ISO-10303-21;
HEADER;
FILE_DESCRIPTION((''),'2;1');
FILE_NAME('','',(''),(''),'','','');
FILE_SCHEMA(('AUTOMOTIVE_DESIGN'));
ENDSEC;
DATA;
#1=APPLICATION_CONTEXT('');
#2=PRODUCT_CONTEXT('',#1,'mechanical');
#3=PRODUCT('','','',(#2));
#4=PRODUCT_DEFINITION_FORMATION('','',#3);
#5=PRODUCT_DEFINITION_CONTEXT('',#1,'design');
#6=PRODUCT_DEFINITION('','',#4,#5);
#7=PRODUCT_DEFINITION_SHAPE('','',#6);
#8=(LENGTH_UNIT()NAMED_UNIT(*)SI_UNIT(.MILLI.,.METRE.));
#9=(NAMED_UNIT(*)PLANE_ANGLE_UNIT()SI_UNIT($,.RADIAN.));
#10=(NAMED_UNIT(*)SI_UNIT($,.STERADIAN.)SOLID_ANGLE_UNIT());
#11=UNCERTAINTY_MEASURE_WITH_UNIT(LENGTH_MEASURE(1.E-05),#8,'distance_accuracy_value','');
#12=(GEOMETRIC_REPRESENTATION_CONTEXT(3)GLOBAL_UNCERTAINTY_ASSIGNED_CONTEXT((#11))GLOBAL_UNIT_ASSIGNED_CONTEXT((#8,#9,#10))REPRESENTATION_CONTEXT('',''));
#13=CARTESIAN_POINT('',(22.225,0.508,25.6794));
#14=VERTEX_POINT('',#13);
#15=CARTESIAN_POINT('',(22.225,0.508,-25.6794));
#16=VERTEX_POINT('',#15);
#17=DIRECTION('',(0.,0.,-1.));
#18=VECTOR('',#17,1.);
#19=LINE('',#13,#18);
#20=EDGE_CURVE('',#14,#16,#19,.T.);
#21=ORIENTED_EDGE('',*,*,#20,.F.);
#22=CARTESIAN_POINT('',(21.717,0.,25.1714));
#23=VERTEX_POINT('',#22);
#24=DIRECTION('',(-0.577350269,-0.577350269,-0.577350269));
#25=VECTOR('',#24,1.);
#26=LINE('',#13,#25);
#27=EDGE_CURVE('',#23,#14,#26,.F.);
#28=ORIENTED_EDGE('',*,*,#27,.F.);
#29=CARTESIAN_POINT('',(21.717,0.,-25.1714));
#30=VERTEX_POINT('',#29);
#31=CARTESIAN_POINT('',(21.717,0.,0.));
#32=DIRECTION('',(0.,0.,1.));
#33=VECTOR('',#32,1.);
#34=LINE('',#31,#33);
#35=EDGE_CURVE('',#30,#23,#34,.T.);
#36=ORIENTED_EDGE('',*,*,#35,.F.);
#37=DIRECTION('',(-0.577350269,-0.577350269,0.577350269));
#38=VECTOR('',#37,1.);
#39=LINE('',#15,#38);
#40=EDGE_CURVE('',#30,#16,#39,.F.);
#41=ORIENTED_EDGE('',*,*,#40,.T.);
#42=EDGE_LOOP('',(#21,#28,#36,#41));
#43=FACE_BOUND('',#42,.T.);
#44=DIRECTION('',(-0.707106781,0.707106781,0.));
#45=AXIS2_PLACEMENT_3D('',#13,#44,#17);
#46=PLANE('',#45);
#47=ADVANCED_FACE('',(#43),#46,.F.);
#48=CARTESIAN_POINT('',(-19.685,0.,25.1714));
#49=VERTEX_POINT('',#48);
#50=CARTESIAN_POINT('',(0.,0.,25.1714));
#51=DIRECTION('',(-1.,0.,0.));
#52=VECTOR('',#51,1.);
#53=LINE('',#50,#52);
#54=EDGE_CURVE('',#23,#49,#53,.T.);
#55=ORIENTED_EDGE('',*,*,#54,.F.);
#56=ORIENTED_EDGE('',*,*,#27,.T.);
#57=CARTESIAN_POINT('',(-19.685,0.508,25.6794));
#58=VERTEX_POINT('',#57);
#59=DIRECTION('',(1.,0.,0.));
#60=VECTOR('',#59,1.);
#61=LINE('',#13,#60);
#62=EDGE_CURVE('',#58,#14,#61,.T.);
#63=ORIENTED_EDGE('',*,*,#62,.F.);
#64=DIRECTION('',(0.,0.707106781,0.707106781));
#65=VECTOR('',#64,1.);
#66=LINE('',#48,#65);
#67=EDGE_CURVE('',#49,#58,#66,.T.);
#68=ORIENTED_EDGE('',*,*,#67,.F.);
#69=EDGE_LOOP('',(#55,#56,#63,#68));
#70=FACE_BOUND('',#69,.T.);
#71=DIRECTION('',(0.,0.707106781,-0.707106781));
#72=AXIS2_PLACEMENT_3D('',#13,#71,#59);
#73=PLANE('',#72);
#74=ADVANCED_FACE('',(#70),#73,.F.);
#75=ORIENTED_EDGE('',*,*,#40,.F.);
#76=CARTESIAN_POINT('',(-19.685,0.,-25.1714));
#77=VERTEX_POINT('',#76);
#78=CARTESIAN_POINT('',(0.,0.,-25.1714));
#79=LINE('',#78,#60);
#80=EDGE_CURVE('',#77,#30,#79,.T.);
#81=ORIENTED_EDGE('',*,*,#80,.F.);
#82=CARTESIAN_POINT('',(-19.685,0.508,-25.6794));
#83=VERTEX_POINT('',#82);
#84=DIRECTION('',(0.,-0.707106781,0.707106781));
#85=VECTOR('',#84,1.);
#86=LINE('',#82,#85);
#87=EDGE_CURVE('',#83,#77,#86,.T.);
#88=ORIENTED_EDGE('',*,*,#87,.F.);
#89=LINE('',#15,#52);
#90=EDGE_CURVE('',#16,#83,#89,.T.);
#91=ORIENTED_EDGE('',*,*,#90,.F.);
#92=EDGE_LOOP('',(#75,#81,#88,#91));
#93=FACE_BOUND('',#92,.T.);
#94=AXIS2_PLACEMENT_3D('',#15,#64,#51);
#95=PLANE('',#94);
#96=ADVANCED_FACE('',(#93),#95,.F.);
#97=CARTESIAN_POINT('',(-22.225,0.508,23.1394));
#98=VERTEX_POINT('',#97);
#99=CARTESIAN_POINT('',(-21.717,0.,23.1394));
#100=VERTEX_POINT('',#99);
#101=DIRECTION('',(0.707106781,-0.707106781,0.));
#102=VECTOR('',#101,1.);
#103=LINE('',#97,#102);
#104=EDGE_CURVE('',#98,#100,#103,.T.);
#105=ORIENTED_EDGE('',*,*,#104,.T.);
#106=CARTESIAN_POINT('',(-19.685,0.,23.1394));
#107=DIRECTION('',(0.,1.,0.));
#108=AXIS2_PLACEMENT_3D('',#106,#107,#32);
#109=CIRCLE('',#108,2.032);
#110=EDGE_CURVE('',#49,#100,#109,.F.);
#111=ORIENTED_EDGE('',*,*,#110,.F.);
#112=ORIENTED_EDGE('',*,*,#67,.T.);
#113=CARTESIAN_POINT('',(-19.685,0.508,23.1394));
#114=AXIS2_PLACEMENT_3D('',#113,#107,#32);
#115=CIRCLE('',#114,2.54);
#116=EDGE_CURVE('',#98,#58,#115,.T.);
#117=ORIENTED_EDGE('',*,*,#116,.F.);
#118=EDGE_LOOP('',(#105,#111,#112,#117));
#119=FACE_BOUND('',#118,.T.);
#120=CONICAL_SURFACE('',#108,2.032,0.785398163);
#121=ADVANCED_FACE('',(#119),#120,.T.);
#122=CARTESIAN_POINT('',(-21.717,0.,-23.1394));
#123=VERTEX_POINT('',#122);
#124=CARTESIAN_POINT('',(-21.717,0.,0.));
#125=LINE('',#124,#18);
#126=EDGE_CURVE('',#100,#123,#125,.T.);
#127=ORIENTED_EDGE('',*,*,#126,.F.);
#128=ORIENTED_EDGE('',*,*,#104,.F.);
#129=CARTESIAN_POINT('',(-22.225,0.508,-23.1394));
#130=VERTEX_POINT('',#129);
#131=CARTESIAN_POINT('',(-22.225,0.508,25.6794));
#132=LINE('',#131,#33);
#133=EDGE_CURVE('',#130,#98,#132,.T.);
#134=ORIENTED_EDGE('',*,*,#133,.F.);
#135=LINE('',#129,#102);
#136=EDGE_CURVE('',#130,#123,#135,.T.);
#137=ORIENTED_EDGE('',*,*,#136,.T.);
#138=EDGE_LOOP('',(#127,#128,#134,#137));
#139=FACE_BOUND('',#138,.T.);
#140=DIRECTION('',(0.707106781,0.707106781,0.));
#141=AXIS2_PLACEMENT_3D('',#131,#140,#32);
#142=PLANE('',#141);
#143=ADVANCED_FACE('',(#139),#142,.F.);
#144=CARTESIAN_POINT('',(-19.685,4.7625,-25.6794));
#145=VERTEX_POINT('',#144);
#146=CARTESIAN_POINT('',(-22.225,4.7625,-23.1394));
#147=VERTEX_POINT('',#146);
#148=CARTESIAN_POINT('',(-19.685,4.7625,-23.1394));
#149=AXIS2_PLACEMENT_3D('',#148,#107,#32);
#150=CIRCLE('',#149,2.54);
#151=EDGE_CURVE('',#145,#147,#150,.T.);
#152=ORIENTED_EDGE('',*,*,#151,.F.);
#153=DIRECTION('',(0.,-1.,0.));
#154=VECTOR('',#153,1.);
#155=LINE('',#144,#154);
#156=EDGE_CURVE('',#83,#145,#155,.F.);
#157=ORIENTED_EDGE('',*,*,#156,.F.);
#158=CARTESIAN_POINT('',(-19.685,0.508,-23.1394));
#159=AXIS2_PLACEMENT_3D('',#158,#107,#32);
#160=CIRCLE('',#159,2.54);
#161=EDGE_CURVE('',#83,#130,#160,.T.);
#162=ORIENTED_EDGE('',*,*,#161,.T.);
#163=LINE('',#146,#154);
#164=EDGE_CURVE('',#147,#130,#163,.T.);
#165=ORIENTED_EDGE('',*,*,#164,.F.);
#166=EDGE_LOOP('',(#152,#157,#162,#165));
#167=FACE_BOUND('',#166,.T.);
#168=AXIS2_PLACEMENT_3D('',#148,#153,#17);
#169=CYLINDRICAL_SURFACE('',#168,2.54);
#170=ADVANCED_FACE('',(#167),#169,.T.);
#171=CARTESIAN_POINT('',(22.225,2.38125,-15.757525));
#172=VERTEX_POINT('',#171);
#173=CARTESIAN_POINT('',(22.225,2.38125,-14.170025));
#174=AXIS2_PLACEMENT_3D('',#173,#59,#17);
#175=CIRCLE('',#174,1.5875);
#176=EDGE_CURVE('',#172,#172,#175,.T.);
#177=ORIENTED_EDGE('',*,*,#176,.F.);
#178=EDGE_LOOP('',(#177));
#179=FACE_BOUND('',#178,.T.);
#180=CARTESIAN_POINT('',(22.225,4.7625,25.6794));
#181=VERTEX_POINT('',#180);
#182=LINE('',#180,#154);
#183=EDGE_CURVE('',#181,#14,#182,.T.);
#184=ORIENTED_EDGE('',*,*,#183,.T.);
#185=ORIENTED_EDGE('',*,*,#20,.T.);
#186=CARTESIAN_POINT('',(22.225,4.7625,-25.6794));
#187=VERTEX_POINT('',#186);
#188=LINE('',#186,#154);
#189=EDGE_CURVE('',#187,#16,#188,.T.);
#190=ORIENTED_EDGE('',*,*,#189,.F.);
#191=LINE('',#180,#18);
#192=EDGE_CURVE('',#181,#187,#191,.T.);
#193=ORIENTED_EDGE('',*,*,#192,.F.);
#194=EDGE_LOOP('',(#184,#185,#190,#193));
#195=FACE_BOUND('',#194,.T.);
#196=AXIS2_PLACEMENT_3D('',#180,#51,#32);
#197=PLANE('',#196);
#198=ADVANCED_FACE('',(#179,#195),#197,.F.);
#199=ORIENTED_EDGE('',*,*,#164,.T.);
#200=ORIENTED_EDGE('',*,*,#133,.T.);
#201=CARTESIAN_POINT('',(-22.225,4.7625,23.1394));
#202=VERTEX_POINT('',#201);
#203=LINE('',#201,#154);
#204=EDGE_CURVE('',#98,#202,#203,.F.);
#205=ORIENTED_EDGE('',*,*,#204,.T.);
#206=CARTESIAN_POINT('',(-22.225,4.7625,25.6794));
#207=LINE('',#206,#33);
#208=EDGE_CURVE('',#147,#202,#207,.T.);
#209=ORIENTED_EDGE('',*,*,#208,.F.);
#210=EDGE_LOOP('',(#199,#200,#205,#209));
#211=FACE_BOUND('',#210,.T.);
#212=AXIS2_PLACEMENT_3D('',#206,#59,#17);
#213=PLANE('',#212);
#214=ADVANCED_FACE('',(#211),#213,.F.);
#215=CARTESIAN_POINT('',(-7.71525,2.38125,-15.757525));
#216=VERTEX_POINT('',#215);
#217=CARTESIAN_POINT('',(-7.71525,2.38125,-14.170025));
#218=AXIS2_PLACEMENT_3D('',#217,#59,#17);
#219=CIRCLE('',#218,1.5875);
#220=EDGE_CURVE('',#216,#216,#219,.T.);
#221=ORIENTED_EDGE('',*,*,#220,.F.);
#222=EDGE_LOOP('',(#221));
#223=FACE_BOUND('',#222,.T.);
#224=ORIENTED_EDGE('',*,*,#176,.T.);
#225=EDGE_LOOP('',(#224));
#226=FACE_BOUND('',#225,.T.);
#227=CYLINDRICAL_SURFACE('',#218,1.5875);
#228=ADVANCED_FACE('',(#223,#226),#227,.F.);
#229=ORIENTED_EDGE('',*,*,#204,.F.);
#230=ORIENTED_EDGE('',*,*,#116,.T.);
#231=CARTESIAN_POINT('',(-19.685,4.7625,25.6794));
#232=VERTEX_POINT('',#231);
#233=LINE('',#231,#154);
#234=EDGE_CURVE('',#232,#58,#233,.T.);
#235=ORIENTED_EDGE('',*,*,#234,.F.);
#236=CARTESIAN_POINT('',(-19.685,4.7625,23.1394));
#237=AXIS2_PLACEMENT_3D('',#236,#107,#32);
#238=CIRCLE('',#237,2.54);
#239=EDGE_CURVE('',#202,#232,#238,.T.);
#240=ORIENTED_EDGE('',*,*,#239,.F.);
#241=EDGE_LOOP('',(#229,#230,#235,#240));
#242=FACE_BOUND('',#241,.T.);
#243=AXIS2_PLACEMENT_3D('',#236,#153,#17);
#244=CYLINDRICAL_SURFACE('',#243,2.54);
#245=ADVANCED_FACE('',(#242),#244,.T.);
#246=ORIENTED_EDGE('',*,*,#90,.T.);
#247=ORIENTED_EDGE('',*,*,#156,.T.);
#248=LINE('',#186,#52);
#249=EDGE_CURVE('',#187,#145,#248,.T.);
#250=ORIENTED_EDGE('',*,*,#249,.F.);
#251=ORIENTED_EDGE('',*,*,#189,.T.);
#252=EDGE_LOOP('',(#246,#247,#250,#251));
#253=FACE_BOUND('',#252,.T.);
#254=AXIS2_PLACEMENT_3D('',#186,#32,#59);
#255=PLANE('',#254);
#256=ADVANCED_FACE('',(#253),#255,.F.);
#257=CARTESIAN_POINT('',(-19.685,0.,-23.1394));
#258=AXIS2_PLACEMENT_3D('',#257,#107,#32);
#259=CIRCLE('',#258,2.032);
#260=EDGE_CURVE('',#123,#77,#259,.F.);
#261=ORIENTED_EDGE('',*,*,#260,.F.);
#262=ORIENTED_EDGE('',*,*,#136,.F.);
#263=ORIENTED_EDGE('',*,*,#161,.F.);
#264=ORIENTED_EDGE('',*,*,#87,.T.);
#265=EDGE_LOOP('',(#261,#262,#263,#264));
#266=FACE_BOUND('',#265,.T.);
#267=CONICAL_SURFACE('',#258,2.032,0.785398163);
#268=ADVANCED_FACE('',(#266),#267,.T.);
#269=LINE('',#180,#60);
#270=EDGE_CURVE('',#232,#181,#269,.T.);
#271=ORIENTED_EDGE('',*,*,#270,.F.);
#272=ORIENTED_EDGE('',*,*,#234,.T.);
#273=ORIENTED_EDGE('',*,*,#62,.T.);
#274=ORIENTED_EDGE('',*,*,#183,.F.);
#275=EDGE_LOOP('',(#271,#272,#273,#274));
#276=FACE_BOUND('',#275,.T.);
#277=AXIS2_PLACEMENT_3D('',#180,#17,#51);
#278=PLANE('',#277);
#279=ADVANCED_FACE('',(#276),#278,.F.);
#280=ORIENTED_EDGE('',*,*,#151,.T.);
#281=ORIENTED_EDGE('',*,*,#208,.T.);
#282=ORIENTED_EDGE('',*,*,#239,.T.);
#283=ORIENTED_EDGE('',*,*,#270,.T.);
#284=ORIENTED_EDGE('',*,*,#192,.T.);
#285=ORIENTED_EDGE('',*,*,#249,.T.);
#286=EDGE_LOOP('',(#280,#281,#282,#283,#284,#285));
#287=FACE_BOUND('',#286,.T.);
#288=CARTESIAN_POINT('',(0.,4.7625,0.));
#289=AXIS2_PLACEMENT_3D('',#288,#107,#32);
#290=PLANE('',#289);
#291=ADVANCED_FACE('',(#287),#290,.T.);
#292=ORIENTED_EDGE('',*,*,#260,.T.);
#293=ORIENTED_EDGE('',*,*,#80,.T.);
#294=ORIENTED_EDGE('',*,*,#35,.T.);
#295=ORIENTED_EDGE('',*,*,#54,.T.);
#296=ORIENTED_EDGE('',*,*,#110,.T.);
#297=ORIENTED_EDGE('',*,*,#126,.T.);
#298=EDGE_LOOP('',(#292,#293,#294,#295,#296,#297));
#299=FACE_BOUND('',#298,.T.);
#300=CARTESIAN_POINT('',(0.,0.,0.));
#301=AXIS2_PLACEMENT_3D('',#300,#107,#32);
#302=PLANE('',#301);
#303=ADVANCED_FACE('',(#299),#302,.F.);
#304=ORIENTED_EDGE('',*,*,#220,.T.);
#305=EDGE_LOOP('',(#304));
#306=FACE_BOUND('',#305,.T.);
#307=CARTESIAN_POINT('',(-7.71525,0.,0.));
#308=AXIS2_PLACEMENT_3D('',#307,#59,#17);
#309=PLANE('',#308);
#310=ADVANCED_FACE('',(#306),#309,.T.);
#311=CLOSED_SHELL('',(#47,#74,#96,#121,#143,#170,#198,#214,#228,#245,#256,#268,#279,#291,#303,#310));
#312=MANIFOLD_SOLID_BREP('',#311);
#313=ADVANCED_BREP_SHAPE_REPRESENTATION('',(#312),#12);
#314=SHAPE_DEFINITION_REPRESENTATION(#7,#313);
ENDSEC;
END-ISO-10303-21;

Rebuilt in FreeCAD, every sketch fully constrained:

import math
import FreeCAD as App
import Part
import Sketcher

V = App.Vector
Q = App.Units.Quantity


def edges_at(feature, points):
    """Names of the edges that pass closest to the given points."""
    edges = feature.Shape.Edges
    near = lambda p: min(range(len(edges)), key=lambda i: edges[i].distToShape(Part.Vertex(*p))[0])
    return sorted({f"Edge{near(p) + 1}" for p in points})

doc = App.newDocument("Part")
body = doc.addObject("PartDesign::Body", "Body")

# Sketch on XZ plane
sketch1 = doc.addObject("Sketcher::SketchObject", "Sketch")
body.addObject(sketch1)
sketch1.AttachmentSupport = (doc.XZ_Plane, [""])
sketch1.MapMode = "FlatFace"
sketch1.addGeometry([
    Part.LineSegment(V(-22.225, -25.6794, 0), V(-22.225, 25.6794, 0)),
    Part.LineSegment(V(-22.225, 25.6794, 0), V(22.225, 25.6794, 0)),
    Part.LineSegment(V(22.225, 25.6794, 0), V(22.225, -25.6794, 0)),
    Part.LineSegment(V(22.225, -25.6794, 0), V(-22.225, -25.6794, 0)),
], False)
sketch1.addConstraint([
    Sketcher.Constraint("Coincident", 0, 2, 1, 1),
    Sketcher.Constraint("Coincident", 1, 2, 2, 1),
    Sketcher.Constraint("Coincident", 2, 2, 3, 1),
    Sketcher.Constraint("Coincident", 3, 2, 0, 1),
    Sketcher.Constraint("Vertical", 0),
    Sketcher.Constraint("Horizontal", 1),
    Sketcher.Constraint("Vertical", 2),
    Sketcher.Constraint("Horizontal", 3),
    Sketcher.Constraint("Symmetric", 0, 2, 2, 2, -1, 1),
    Sketcher.Constraint("DistanceX", 1, 1, 1, 2, Q("1.75 in")),
    Sketcher.Constraint("DistanceY", 0, 1, 0, 2, Q("2.022 in")),
])
pad1 = doc.addObject("PartDesign::Pad", "Pad")
body.addObject(pad1)
pad1.Profile = sketch1
pad1.Length = Q("0.1875 in")
pad1.Reversed = True

# Sketch on YZ plane
sketch2 = doc.addObject("Sketcher::SketchObject", "Sketch001")
body.addObject(sketch2)
sketch2.AttachmentSupport = (doc.YZ_Plane, [""])
sketch2.MapMode = "FlatFace"
sketch2.AttachmentOffset = App.Placement(V(0, 0, 0.875 * 25.4), App.Rotation())
sketch2.addGeometry([
    Part.ArcOfCircle(Part.Circle(V(2.38125, -14.170025, 0), V(0, 0, 1), 1.5875), math.radians(-90), math.radians(0)),
    Part.ArcOfCircle(Part.Circle(V(2.38125, -14.170025, 0), V(0, 0, 1), 1.5875), math.radians(0), math.radians(180)),
    Part.ArcOfCircle(Part.Circle(V(2.38125, -14.170025, 0), V(0, 0, 1), 1.5875), math.radians(180), math.radians(270)),
], False)
sketch2.addConstraint([
    Sketcher.Constraint("Tangent", 0, 2, 1, 1),
    Sketcher.Constraint("Tangent", 1, 2, 2, 1),
    Sketcher.Constraint("Tangent", 2, 2, 0, 1),
    Sketcher.Constraint("Horizontal", 2, 3, 0, 2),
    Sketcher.Constraint("Horizontal", 0, 2, 1, 2),
    Sketcher.Constraint("Vertical", 1, 3, 2, 2),
    Sketcher.Constraint("Radius", 0, Q("0.0625 in")),
    Sketcher.Constraint("DistanceX", -1, 1, 0, 3, Q("0.09375 in")),
    Sketcher.Constraint("DistanceY", 0, 3, -1, 1, 14.170025),
])
pocket1 = doc.addObject("PartDesign::Pocket", "Pocket")
body.addObject(pocket1)
pocket1.Profile = sketch2
pocket1.Length = 29.94025
doc.recompute()

fillet = doc.addObject("PartDesign::Fillet", "Fillet")
body.addObject(fillet)
fillet.Base = (pocket1, edges_at(pocket1, [(-22.225, 2.381, -25.679), (-22.225, 2.381, 25.679)]))
fillet.Radius = Q("0.1 in")
doc.recompute()

chamfer = doc.addObject("PartDesign::Chamfer", "Chamfer")
body.addObject(chamfer)
chamfer.Base = (fillet, edges_at(fillet, [
    (-22.225, 0, 0),
    (1.27, 0, 25.679),
    (-21.481, 0, 24.935),
    (-21.481, 0, -24.935),
    (1.27, 0, -25.679),
    (22.225, 0, 0),
]))
chamfer.Size = Q("0.02 in")

doc.recompute()
